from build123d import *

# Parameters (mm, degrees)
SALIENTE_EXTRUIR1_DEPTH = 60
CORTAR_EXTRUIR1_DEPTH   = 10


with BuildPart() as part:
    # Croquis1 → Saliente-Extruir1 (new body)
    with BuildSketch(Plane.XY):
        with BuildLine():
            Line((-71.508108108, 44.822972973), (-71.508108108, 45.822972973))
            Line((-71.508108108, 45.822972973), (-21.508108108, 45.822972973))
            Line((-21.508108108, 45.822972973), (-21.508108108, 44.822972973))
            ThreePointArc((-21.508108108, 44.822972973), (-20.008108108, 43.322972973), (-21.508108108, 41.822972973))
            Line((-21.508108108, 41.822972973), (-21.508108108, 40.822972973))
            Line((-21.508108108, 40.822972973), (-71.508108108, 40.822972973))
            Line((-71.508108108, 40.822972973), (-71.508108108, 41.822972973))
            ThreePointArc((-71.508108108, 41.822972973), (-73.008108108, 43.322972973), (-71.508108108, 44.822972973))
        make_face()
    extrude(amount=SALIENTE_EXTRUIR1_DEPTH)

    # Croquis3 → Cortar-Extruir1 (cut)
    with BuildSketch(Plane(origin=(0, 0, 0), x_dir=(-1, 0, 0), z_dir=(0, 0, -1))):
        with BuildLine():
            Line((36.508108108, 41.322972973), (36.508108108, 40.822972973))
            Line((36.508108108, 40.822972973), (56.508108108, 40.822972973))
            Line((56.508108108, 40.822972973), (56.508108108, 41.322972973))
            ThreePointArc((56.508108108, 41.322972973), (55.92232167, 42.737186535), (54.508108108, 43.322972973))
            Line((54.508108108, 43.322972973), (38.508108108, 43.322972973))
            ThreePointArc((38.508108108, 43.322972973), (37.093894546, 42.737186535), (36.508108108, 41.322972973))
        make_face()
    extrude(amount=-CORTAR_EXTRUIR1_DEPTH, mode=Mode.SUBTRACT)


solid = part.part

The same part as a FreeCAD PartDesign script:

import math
import FreeCAD as App
import Part
import Sketcher

doc = App.newDocument("Part")
params = doc.addObject("Spreadsheet::Sheet", "Params")
for row, (alias, value) in enumerate([
    ("sketch1_radius", "1.5 mm"),
    ("sketch1_width", "50 mm"),
    ("sketch1_height", "1 mm"),
    ("pad1_length", "60 mm"),
    ("sketch2_radius", "2 mm"),
    ("sketch2_width", "20 mm"),
    ("sketch2_height", "0.5 mm"),
    ("pocket1_length", "10 mm"),
], start=1):
    params.set(f"A{row}", alias)
    params.set(f"B{row}", "=" + value)
    params.setAlias(f"B{row}", alias)

body = doc.addObject("PartDesign::Body", "Body")

# Sketch on XY plane
sketch1 = body.newObject("Sketcher::SketchObject", "Sketch")
sketch1.AttachmentSupport = (doc.getObject("XY_Plane"), [""])
sketch1.MapMode = "FlatFace"
sketch1.addGeometry([
    Part.LineSegment(App.Vector(-71.5, 45.8, 0), App.Vector(-71.5, 44.8, 0)),  # 0
    Part.ArcOfCircle(Part.Circle(App.Vector(-71.5, 43.3, 0), App.Vector(0, 0, 1), 1.5), math.radians(90), math.radians(270)),  # 1
    Part.LineSegment(App.Vector(-71.5, 41.8, 0), App.Vector(-71.5, 40.8, 0)),  # 2
    Part.LineSegment(App.Vector(-71.5, 40.8, 0), App.Vector(-21.5, 40.8, 0)),  # 3
    Part.LineSegment(App.Vector(-21.5, 40.8, 0), App.Vector(-21.5, 41.8, 0)),  # 4
    Part.ArcOfCircle(Part.Circle(App.Vector(-21.5, 43.3, 0), App.Vector(0, 0, 1), 1.5), math.radians(-90), math.radians(90)),  # 5
    Part.LineSegment(App.Vector(-21.5, 44.8, 0), App.Vector(-21.5, 45.8, 0)),  # 6
    Part.LineSegment(App.Vector(-21.5, 45.8, 0), App.Vector(-71.5, 45.8, 0)),  # 7
], False)
sketch1.addConstraint([
    Sketcher.Constraint("Coincident", 0, 2, 1, 1),
    Sketcher.Constraint("Coincident", 1, 2, 2, 1),
    Sketcher.Constraint("Coincident", 2, 2, 3, 1),
    Sketcher.Constraint("Coincident", 3, 2, 4, 1),
    Sketcher.Constraint("Coincident", 4, 2, 5, 1),
    Sketcher.Constraint("Coincident", 5, 2, 6, 1),
    Sketcher.Constraint("Coincident", 6, 2, 7, 1),
    Sketcher.Constraint("Coincident", 7, 2, 0, 1),
    Sketcher.Constraint("Vertical", 0),
    Sketcher.Constraint("Vertical", 2),
    Sketcher.Constraint("Horizontal", 3),
    Sketcher.Constraint("Vertical", 4),
    Sketcher.Constraint("Vertical", 6),
    Sketcher.Constraint("Horizontal", 7),
    Sketcher.Constraint("Equal", 1, 5),
    Sketcher.Constraint("Horizontal", 1, 3, 5, 3),
    Sketcher.Constraint("Vertical", 1, 3, 0, 2),
    Sketcher.Constraint("Vertical", 0, 2, 1, 2),
    Sketcher.Constraint("Vertical", 5, 3, 3, 2),
    Sketcher.Constraint("Vertical", 4, 2, 5, 2),
    Sketcher.Constraint("Equal", 0, 2),
    Sketcher.Constraint("Radius", 1, 1.5),
    Sketcher.Constraint("DistanceX", 3, 1, 3, 2, 50.0),
    Sketcher.Constraint("DistanceY", 0, 2, 0, 1, 1.0),
    Sketcher.Constraint("DistanceX", 1, 3, -1, 1, 71.508108),
    Sketcher.Constraint("DistanceY", -1, 1, 1, 3, 43.322973),
])
sketch1.setExpression("Constraints[21]", "Params.sketch1_radius")
sketch1.setExpression("Constraints[22]", "Params.sketch1_width")
sketch1.setExpression("Constraints[23]", "Params.sketch1_height")
pad1 = body.newObject("PartDesign::Pad", "Pad")
pad1.Profile = sketch1
pad1.setExpression("Length", "Params.pad1_length")

# Sketch on XY plane
sketch2 = body.newObject("Sketcher::SketchObject", "Sketch001")
sketch2.AttachmentSupport = (doc.getObject("XY_Plane"), [""])
sketch2.MapMode = "FlatFace"
sketch2.addGeometry([
    Part.LineSegment(App.Vector(-36.5, 41.3, 0), App.Vector(-36.5, 40.8, 0)),  # 0
    Part.LineSegment(App.Vector(-36.5, 40.8, 0), App.Vector(-56.5, 40.8, 0)),  # 1
    Part.LineSegment(App.Vector(-56.5, 40.8, 0), App.Vector(-56.5, 41.3, 0)),  # 2
    Part.ArcOfCircle(Part.Circle(App.Vector(-54.5, 41.3, 0), App.Vector(0, 0, 1), 2), math.radians(90), math.radians(180)),  # 3
    Part.LineSegment(App.Vector(-54.5, 43.3, 0), App.Vector(-38.5, 43.3, 0)),  # 4
    Part.ArcOfCircle(Part.Circle(App.Vector(-38.5, 41.3, 0), App.Vector(0, 0, 1), 2), math.radians(0), math.radians(90)),  # 5
], False)
sketch2.addConstraint([
    Sketcher.Constraint("Coincident", 0, 2, 1, 1),
    Sketcher.Constraint("Coincident", 1, 2, 2, 1),
    Sketcher.Constraint("Tangent", 2, 2, 3, 2),
    Sketcher.Constraint("Tangent", 3, 1, 4, 1),
    Sketcher.Constraint("Tangent", 4, 2, 5, 2),
    Sketcher.Constraint("Tangent", 5, 1, 0, 1),
    Sketcher.Constraint("Vertical", 0),
    Sketcher.Constraint("Horizontal", 1),
    Sketcher.Constraint("Vertical", 2),
    Sketcher.Constraint("Horizontal", 4),
    Sketcher.Constraint("Equal", 3, 5),
    Sketcher.Constraint("Radius", 3, 2.0),
    Sketcher.Constraint("DistanceX", 1, 2, 1, 1, 20.0),
    Sketcher.Constraint("DistanceY", 0, 2, 0, 1, 0.5),
    Sketcher.Constraint("DistanceX", 3, 3, -1, 1, 54.508108),
    Sketcher.Constraint("DistanceY", -1, 1, 3, 3, 41.322973),
])
sketch2.setExpression("Constraints[11]", "Params.sketch2_radius")
sketch2.setExpression("Constraints[12]", "Params.sketch2_width")
sketch2.setExpression("Constraints[13]", "Params.sketch2_height")
pocket1 = body.newObject("PartDesign::Pocket", "Pocket")
pocket1.Profile = sketch2
pocket1.setExpression("Length", "Params.pocket1_length")
pocket1.Reversed = True

doc.recompute()
